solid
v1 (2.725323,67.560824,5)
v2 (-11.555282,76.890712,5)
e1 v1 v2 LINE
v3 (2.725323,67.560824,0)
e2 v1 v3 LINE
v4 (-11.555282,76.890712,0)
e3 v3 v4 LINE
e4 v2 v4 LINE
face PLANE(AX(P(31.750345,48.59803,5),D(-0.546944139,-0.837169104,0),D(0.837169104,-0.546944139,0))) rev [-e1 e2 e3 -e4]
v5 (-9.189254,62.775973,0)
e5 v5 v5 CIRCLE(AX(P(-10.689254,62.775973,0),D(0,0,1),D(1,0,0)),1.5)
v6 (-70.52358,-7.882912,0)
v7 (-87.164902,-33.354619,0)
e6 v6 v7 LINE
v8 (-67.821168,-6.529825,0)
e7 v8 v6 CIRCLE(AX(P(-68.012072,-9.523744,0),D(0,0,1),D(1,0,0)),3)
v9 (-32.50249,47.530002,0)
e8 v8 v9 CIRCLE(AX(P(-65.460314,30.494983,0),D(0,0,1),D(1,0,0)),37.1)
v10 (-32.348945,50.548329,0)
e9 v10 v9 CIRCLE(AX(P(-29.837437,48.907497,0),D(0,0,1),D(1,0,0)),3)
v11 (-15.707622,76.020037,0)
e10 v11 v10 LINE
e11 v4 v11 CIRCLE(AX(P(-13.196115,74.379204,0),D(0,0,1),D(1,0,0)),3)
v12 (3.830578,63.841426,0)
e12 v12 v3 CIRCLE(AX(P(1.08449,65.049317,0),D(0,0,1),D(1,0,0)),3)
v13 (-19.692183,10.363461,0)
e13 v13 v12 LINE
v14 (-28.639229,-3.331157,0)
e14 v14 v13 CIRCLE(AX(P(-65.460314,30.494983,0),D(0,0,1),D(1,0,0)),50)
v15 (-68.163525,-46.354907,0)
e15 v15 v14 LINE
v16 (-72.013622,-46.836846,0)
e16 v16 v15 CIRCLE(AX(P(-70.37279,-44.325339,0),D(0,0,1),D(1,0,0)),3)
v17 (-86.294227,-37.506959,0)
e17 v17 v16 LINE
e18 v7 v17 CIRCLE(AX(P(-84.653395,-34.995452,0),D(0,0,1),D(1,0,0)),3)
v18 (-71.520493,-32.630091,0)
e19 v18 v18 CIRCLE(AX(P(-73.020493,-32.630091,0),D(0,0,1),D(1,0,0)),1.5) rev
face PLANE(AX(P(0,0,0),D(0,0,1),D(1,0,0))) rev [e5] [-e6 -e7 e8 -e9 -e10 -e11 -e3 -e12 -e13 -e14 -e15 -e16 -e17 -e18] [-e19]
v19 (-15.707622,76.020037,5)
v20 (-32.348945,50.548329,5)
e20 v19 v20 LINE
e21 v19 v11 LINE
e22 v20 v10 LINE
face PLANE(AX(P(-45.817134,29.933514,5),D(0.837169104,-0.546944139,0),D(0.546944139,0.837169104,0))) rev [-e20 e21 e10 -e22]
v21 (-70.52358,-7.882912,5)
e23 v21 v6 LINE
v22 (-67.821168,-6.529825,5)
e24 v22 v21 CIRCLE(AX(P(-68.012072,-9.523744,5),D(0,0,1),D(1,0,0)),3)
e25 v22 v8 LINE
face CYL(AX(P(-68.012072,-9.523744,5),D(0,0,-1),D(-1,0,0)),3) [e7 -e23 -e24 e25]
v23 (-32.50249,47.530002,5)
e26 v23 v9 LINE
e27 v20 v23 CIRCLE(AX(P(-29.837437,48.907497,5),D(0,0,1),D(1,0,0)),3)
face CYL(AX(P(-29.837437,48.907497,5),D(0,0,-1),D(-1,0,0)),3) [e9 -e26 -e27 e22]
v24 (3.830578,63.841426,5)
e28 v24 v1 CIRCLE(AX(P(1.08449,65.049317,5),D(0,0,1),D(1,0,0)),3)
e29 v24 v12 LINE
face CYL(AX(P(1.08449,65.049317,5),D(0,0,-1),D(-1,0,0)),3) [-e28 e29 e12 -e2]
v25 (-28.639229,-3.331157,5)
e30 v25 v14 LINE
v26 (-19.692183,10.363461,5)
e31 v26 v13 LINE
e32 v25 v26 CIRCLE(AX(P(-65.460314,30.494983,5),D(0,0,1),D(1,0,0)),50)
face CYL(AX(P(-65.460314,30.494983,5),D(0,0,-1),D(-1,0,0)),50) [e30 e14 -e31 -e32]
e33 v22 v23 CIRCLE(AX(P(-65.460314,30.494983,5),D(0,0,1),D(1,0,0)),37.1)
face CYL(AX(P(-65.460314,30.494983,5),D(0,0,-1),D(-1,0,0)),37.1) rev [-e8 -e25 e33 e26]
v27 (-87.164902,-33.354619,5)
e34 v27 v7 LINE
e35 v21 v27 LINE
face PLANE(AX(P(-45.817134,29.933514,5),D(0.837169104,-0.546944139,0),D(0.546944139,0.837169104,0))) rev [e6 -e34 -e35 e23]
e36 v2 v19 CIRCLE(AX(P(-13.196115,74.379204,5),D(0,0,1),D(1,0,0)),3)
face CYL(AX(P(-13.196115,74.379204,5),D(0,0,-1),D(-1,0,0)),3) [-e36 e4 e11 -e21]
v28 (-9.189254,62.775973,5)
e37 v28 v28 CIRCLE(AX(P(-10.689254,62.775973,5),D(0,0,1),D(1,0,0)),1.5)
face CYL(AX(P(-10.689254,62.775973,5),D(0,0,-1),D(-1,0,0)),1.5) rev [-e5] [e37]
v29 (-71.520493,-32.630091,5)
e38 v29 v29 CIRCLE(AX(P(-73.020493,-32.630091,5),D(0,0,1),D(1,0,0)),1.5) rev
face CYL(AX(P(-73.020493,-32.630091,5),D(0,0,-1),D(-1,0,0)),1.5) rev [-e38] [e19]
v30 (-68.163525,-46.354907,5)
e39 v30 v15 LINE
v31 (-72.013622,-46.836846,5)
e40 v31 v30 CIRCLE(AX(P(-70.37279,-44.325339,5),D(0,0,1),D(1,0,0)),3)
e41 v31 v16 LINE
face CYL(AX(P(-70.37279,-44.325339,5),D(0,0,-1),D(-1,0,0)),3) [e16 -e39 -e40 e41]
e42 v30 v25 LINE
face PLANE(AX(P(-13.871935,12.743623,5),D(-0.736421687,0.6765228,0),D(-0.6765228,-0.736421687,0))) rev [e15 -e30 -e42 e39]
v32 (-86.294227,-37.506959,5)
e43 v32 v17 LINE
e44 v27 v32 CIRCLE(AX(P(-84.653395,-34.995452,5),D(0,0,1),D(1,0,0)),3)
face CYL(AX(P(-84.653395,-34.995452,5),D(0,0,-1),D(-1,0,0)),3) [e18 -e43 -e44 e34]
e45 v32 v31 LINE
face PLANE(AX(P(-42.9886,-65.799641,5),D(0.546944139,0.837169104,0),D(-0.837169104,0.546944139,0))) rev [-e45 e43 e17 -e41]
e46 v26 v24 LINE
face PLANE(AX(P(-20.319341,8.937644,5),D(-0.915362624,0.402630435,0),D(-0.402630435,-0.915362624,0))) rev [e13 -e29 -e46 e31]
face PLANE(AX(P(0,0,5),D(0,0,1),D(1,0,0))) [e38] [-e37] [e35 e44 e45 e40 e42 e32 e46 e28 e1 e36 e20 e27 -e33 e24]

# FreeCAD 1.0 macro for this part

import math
import FreeCAD as App
import Part
import Sketcher

V = App.Vector

doc = App.newDocument("Part")
body = doc.addObject("PartDesign::Body", "Body")

# Sketch on XY plane
sketch1 = doc.addObject("Sketcher::SketchObject", "Sketch")
body.addObject(sketch1)
sketch1.AttachmentSupport = (doc.XY_Plane, [""])
sketch1.MapMode = "FlatFace"
sketch1.addGeometry([
    Part.ArcOfCircle(Part.Circle(V(-70.37279, -44.325339, 0), V(0, 0, 1), 3), math.radians(-123.15762), math.radians(-42.572516)),  # 0
    Part.LineSegment(V(-68.163525, -46.354907, 0), V(-28.639229, -3.331157, 0)),  # 1
    Part.ArcOfCircle(Part.Circle(V(-65.460314, 30.494983, 0), V(0, 0, 1), 50), math.radians(-42.572516), math.radians(-33.15762)),  # 2
    Part.ArcOfCircle(Part.Circle(V(-65.460314, 30.494983, 0), V(0, 0, 1), 50), math.radians(-33.15762), math.radians(-23.742723)),  # 3
    Part.LineSegment(V(-19.692183, 10.363461, 0), V(3.830578, 63.841426, 0)),  # 4
    Part.ArcOfCircle(Part.Circle(V(1.08449, 65.049317, 0), V(0, 0, 1), 3), math.radians(-23.742723), math.radians(56.84238)),  # 5
    Part.LineSegment(V(2.725323, 67.560824, 0), V(-11.555282, 76.890712, 0)),  # 6
    Part.ArcOfCircle(Part.Circle(V(-13.196115, 74.379204, 0), V(0, 0, 1), 3), math.radians(56.84238), math.radians(146.84238)),  # 7
    Part.LineSegment(V(-15.707622, 76.020037, 0), V(-32.348945, 50.548329, 0)),  # 8
    Part.ArcOfCircle(Part.Circle(V(-29.837437, 48.907497, 0), V(0, 0, 1), 3), math.radians(146.84238), math.radians(207.333236)),  # 9
    Part.ArcOfCircle(Part.Circle(V(-65.460314, 30.494983, 0), V(0, 0, 1), 37.1), math.radians(-33.15762), math.radians(27.333236)),  # 10
    Part.ArcOfCircle(Part.Circle(V(-65.460314, 30.494983, 0), V(0, 0, 1), 37.1), math.radians(-93.648475), math.radians(-33.15762)),  # 11
    Part.ArcOfCircle(Part.Circle(V(-68.012072, -9.523744, 0), V(0, 0, 1), 3), math.radians(86.351525), math.radians(146.84238)),  # 12
    Part.LineSegment(V(-70.52358, -7.882912, 0), V(-87.164902, -33.354619, 0)),  # 13
    Part.ArcOfCircle(Part.Circle(V(-84.653395, -34.995452, 0), V(0, 0, 1), 3), math.radians(146.84238), math.radians(236.84238)),  # 14
    Part.LineSegment(V(-86.294227, -37.506959, 0), V(-72.013622, -46.836846, 0)),  # 15
    Part.Circle(V(-73.020493, -32.630091, 0), V(0, 0, 1), 1.5),  # 16
    Part.Circle(V(-10.689254, 62.775973, 0), V(0, 0, 1), 1.5),  # 17
], False)
sketch1.addConstraint([
    Sketcher.Constraint("Coincident", 0, 2, 1, 1),
    Sketcher.Constraint("Coincident", 1, 2, 2, 1),
    Sketcher.Constraint("Coincident", 2, 2, 3, 1),
    Sketcher.Constraint("Coincident", 3, 2, 4, 1),
    Sketcher.Constraint("Coincident", 4, 2, 5, 1),
    Sketcher.Constraint("Coincident", 5, 2, 6, 1),
    Sketcher.Constraint("Coincident", 6, 2, 7, 1),
    Sketcher.Constraint("Coincident", 7, 2, 8, 1),
    Sketcher.Constraint("Coincident", 8, 2, 9, 1),
    Sketcher.Constraint("Coincident", 9, 2, 10, 2),
    Sketcher.Constraint("Coincident", 10, 1, 11, 2),
    Sketcher.Constraint("Coincident", 11, 1, 12, 1),
    Sketcher.Constraint("Coincident", 12, 2, 13, 1),
    Sketcher.Constraint("Coincident", 13, 2, 14, 1),
    Sketcher.Constraint("Coincident", 14, 2, 15, 1),
    Sketcher.Constraint("Coincident", 15, 2, 0, 1),
    Sketcher.Constraint("Coincident", 3, 3, 2, 3),
    Sketcher.Constraint("Coincident", 10, 3, 2, 3),
    Sketcher.Constraint("Coincident", 11, 3, 2, 3),
    Sketcher.Constraint("Diameter", 16, 3.0),
    Sketcher.Constraint("Diameter", 17, 3.0),
    Sketcher.Constraint("Radius", 0, 3.0),
    Sketcher.Constraint("Radius", 2, 50.0),
    Sketcher.Constraint("Radius", 5, 3.0),
    Sketcher.Constraint("Radius", 7, 3.0),
    Sketcher.Constraint("Radius", 9, 3.0),
    Sketcher.Constraint("Radius", 12, 3.0),
    Sketcher.Constraint("Radius", 14, 3.0),
    Sketcher.Constraint("Radius", 10, 37.1),
    Sketcher.Constraint("Distance", 8, 30.426),
    Sketcher.Constraint("Distance", 13, 30.426),
    Sketcher.Constraint("DistanceX", 2, 3, 7, 3, 52.264199),
    Sketcher.Constraint("DistanceX", 14, 3, 16, 3, 11.632902),
    Sketcher.Constraint("DistanceY", 4, 2, 5, 2, 3.719399),
    Sketcher.Constraint("Distance", 1, 58.42271),
    Sketcher.Constraint("Distance", 4, 58.42271),
    Sketcher.Constraint("Distance", 6, 17.058209),
    Sketcher.Constraint("Distance", 15, 17.058209),
    Sketcher.Constraint("DistanceX", 0, 3, -1, 1, 70.37279),
    Sketcher.Constraint("DistanceY", 0, 3, -1, 1, 44.325339),
    Sketcher.Constraint("DistanceX", -1, 1, 5, 3, 1.08449),
    Sketcher.Constraint("DistanceY", 14, 3, -1, 1, 34.995452),
    Sketcher.Constraint("DistanceY", 16, 3, -1, 1, 32.630091),
    Sketcher.Constraint("DistanceX", 1, 2, -1, 1, 28.639229),
    Sketcher.Constraint("DistanceX", 2, 2, -1, 1, 23.601859),
    Sketcher.Constraint("DistanceY", -1, 1, 3, 2, 10.363461),
    Sketcher.Constraint("DistanceX", -1, 1, 4, 2, 3.830578),
    Sketcher.Constraint("DistanceY", -1, 1, 6, 2, 76.890712),
    Sketcher.Constraint("DistanceY", -1, 1, 8, 2, 50.548329),
    Sketcher.Constraint("DistanceX", 9, 2, -1, 1, 32.50249),
    Sketcher.Constraint("DistanceX", 10, 1, -1, 1, 34.40134),
    Sketcher.Constraint("DistanceX", 12, 2, -1, 1, 70.52358),
    Sketcher.Constraint("DistanceY", 12, 2, -1, 1, 7.882912),
    Sketcher.Constraint("DistanceY", 13, 2, -1, 1, 33.354619),
    Sketcher.Constraint("DistanceY", 14, 2, -1, 1, 37.506959),
    Sketcher.Constraint("DistanceY", 0, 3, 2, 3, 74.820322),
    Sketcher.Constraint("DistanceY", 2, 3, 7, 3, 43.884222),
    Sketcher.Constraint("DistanceY", 9, 3, 5, 3, 16.14182),
    Sketcher.Constraint("DistanceX", 7, 3, 17, 3, 2.506861),
    Sketcher.Constraint("DistanceY", 17, 3, 7, 3, 11.603232),
    Sketcher.Constraint("DistanceY", 12, 3, 11, 1, 2.99392),
])
pad1 = doc.addObject("PartDesign::Pad", "Pad")
body.addObject(pad1)
pad1.Profile = sketch1
pad1.Length = 5

doc.recompute()
